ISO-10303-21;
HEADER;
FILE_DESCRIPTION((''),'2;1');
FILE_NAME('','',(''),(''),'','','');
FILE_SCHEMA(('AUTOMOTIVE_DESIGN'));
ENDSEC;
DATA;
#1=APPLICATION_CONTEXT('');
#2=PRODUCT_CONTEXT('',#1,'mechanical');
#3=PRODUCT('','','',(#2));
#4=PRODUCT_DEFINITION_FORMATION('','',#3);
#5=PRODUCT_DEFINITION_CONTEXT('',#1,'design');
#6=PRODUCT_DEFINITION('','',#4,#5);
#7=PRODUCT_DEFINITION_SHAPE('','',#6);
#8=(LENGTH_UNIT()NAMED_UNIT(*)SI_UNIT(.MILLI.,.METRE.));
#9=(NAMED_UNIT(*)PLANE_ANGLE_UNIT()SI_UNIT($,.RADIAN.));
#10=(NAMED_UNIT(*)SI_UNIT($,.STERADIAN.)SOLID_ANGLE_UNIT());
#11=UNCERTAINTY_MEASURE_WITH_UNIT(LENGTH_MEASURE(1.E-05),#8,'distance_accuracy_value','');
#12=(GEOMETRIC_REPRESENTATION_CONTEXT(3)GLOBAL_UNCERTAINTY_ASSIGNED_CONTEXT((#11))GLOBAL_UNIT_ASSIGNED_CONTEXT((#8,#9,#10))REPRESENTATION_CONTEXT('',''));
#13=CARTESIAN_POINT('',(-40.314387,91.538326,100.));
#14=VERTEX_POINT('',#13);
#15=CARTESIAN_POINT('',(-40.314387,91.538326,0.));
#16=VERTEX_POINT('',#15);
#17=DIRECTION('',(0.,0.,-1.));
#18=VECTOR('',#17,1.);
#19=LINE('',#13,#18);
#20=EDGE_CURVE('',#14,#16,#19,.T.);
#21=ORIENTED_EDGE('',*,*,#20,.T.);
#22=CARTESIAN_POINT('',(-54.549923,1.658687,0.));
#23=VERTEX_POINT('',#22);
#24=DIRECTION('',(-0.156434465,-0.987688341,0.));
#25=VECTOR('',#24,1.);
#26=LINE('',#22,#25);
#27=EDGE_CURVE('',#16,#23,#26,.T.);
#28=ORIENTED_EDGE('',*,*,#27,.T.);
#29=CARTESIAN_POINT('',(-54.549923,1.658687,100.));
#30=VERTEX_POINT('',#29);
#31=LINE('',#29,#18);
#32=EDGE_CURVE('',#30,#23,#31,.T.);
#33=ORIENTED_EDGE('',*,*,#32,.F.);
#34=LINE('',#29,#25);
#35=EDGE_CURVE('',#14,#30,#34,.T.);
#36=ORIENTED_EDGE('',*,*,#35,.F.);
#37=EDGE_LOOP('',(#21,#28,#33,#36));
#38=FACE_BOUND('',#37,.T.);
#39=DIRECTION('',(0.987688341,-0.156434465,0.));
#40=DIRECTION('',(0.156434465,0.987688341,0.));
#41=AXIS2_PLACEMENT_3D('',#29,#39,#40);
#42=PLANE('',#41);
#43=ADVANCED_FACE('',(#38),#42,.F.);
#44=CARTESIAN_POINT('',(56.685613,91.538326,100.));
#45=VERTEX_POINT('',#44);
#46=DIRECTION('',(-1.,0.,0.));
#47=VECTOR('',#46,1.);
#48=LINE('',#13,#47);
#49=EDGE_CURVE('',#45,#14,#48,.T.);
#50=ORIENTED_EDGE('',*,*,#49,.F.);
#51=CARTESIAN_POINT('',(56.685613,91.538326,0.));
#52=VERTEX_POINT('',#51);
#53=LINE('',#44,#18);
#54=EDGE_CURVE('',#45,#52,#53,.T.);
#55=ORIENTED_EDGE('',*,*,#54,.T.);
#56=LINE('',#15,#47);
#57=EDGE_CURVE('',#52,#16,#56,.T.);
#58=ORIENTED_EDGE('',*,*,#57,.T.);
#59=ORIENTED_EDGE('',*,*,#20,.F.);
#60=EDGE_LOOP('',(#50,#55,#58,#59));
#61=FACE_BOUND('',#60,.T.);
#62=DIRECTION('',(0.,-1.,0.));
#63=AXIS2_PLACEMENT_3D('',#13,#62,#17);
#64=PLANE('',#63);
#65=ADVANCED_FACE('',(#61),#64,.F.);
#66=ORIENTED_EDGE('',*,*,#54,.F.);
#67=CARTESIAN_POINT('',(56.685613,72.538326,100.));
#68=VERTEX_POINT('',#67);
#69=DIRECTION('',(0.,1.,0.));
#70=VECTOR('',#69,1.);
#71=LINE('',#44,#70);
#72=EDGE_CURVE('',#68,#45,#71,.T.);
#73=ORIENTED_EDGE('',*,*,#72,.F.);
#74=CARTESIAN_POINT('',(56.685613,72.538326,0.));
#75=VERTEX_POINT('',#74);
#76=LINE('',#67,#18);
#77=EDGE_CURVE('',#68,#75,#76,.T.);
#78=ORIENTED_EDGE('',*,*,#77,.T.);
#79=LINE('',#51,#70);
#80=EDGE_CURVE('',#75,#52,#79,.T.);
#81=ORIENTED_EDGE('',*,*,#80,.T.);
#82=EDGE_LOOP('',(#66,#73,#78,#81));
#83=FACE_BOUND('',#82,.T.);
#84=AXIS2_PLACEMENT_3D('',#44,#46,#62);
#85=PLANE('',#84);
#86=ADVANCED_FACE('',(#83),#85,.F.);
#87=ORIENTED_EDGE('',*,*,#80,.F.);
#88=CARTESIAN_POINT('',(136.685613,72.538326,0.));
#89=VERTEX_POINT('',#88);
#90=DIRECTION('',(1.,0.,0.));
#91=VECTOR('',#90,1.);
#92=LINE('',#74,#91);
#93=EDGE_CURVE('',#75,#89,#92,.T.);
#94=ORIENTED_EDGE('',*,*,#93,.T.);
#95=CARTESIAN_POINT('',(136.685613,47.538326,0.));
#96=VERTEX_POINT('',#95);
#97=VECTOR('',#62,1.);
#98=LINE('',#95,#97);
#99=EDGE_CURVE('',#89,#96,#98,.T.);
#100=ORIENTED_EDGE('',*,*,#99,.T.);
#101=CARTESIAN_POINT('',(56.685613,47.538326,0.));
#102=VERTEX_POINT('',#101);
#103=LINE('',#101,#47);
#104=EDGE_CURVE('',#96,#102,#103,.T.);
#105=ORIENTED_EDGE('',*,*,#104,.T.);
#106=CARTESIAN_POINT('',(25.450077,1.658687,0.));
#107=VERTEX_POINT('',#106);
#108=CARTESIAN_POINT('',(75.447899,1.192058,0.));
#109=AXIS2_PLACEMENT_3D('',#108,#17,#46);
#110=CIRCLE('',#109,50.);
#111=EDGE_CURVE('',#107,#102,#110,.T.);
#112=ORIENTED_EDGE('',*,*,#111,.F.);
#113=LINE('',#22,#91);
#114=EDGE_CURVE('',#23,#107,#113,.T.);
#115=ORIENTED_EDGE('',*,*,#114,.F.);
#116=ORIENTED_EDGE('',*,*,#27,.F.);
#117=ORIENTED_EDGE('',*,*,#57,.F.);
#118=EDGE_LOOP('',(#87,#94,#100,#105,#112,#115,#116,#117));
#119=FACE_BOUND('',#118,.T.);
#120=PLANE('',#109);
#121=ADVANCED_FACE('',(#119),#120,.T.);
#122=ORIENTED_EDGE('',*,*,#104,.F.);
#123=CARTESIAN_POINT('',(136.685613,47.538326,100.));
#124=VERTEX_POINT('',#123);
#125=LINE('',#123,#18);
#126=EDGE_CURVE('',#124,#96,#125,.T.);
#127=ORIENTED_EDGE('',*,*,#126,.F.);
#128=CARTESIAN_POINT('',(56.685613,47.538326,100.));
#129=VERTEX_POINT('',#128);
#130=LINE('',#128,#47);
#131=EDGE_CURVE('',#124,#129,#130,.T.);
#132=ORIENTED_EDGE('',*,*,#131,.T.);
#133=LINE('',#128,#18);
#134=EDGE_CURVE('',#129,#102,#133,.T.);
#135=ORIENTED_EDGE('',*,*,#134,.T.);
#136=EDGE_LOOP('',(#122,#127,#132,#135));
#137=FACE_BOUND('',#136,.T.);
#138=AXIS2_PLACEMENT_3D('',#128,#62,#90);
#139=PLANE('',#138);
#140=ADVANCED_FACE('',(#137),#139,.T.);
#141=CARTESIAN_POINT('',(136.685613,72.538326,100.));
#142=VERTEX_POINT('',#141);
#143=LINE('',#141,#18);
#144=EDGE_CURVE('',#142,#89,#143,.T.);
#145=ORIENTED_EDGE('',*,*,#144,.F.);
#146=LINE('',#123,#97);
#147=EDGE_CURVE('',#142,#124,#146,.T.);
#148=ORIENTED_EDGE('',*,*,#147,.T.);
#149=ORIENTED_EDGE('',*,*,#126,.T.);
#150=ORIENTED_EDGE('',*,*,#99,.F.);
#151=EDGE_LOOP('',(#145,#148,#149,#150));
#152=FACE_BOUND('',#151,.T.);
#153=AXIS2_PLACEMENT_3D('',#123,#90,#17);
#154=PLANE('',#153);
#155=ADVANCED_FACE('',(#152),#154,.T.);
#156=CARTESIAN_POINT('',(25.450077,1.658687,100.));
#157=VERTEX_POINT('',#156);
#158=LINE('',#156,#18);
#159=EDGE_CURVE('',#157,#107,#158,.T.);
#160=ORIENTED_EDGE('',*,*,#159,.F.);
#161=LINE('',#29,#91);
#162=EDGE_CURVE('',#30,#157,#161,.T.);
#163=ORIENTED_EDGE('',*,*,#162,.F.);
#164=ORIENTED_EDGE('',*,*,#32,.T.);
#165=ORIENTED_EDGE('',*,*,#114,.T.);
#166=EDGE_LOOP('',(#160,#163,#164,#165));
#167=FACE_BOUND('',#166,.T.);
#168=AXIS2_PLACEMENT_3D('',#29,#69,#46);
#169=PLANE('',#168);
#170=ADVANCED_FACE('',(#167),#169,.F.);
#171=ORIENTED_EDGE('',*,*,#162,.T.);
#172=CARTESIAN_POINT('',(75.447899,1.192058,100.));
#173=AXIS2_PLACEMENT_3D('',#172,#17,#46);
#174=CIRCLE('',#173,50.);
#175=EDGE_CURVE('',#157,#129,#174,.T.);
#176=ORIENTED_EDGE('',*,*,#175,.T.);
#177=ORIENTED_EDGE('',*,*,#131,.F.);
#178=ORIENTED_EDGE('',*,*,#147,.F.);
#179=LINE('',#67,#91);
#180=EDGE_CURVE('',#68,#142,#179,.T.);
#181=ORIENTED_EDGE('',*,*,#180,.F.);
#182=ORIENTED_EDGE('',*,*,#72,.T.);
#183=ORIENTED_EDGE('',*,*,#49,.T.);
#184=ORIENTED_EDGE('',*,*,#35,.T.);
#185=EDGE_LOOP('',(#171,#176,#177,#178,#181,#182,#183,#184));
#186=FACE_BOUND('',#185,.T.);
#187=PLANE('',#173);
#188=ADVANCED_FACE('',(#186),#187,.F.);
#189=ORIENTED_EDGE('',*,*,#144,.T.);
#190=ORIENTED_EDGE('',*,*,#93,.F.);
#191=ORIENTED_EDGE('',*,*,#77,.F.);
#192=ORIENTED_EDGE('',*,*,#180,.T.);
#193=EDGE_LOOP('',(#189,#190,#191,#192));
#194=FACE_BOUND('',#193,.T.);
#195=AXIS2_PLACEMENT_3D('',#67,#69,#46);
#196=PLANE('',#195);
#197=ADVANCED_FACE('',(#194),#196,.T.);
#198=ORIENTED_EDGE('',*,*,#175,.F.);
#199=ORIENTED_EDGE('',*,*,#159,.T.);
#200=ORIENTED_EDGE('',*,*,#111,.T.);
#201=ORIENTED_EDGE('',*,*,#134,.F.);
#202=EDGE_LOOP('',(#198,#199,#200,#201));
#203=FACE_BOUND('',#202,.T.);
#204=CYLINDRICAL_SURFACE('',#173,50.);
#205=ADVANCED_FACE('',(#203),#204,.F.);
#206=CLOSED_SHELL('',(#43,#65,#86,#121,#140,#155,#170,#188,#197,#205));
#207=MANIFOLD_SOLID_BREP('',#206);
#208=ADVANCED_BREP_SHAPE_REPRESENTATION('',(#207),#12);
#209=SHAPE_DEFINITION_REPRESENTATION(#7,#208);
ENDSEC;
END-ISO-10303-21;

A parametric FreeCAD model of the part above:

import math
import FreeCAD as App
import Part
import Sketcher

V = App.Vector
Q = App.Units.Quantity


def add_polygon(sketch, points):
    """Adds a closed chain of lines whose ends are joined by coincident constraints."""
    first, n = sketch.GeometryCount, len(points)
    for a, b in zip(points, points[1:] + points[:1]):
        sketch.addGeometry(Part.LineSegment(App.Vector(*a, 0), App.Vector(*b, 0)), False)
    for i in range(n):
        sketch.addConstraint(Sketcher.Constraint("Coincident", first + i, 2, first + (i + 1) % n, 1))

doc = App.newDocument("Part")
params = doc.addObject("Spreadsheet::Sheet", "Params")
for row, (alias, value) in enumerate([
    ("sketch1_radius", "50 mm"),
    ("sketch1_width", "80 mm"),
    ("sketch1_width2", "97 mm"),
    ("sketch1_height", "44 mm"),
    ("sketch1_length", "91 mm"),
    ("pad1_length", "100 mm"),
    ("sketch2_width", "80 mm"),
    ("sketch2_height", "25 mm"),
    ("pad2_length", "100 mm"),
], start=1):
    params.set(f"A{row}", alias)
    params.set(f"B{row}", "=" + value)
    params.setAlias(f"B{row}", alias)

body = doc.addObject("PartDesign::Body", "Body")

# Sketch on XY plane
sketch1 = doc.addObject("Sketcher::SketchObject", "Sketch")
body.addObject(sketch1)
sketch1.AttachmentSupport = (doc.XY_Plane, [""])
sketch1.MapMode = "FlatFace"
sketch1.addGeometry([
    Part.LineSegment(V(-55, 2, 0), V(25, 2, 0)),  # 0
    Part.ArcOfCircle(Part.Circle(V(75, 1, 0), V(0, 0, 1), 50), math.radians(112), math.radians(179)),  # 1
    Part.LineSegment(V(57, 48, 0), V(57, 92, 0)),  # 2
    Part.LineSegment(V(57, 92, 0), V(-40, 92, 0)),  # 3
    Part.LineSegment(V(-40, 92, 0), V(-55, 2, 0)),  # 4
], False)
sketch1.addConstraint([
    Sketcher.Constraint("Coincident", 0, 2, 1, 2),
    Sketcher.Constraint("Coincident", 1, 1, 2, 1),
    Sketcher.Constraint("Coincident", 2, 2, 3, 1),
    Sketcher.Constraint("Coincident", 3, 2, 4, 1),
    Sketcher.Constraint("Coincident", 4, 2, 0, 1),
    Sketcher.Constraint("Horizontal", 0),
    Sketcher.Constraint("Vertical", 2),
    Sketcher.Constraint("Horizontal", 3),
    Sketcher.Constraint("Radius", 1, 50.0),
    Sketcher.Constraint("DistanceX", 0, 1, 0, 2, 80.0),
    Sketcher.Constraint("DistanceX", 3, 2, 3, 1, 97.0),
    Sketcher.Constraint("DistanceY", 2, 1, 2, 2, 44.0),
    Sketcher.Constraint("Angle", 4, Q("-99 deg")),
    Sketcher.Constraint("Distance", 4, 91.0),
    Sketcher.Constraint("DistanceX", -1, 1, 1, 3, 75.447899),
    Sketcher.Constraint("DistanceY", -1, 1, 1, 3, 1.192058),
])
sketch1.setExpression("Constraints[8]", "Params.sketch1_radius")
sketch1.setExpression("Constraints[9]", "Params.sketch1_width")
sketch1.setExpression("Constraints[10]", "Params.sketch1_width2")
sketch1.setExpression("Constraints[11]", "Params.sketch1_height")
sketch1.setExpression("Constraints[13]", "Params.sketch1_length")
pad1 = doc.addObject("PartDesign::Pad", "Pad")
body.addObject(pad1)
pad1.Profile = sketch1
pad1.setExpression("Length", "Params.pad1_length")

# Sketch on XY plane
sketch2 = doc.addObject("Sketcher::SketchObject", "Sketch001")
body.addObject(sketch2)
sketch2.AttachmentSupport = (doc.XY_Plane, [""])
sketch2.MapMode = "FlatFace"
add_polygon(sketch2, [(137, 73), (137, 48), (57, 48), (57, 73)])  # lines 0-3
sketch2.addConstraint([
    Sketcher.Constraint("Vertical", 0),
    Sketcher.Constraint("Horizontal", 1),
    Sketcher.Constraint("Vertical", 2),
    Sketcher.Constraint("Horizontal", 3),
    Sketcher.Constraint("DistanceX", 1, 2, 1, 1, 80.0),
    Sketcher.Constraint("DistanceY", 0, 2, 0, 1, 25.0),
    Sketcher.Constraint("DistanceX", -1, 1, 0, 2, 136.685613),
    Sketcher.Constraint("DistanceY", -1, 1, 0, 2, 47.538326),
])
sketch2.setExpression("Constraints[8]", "Params.sketch2_width")
sketch2.setExpression("Constraints[9]", "Params.sketch2_height")
pad2 = doc.addObject("PartDesign::Pad", "Pad001")
body.addObject(pad2)
pad2.Profile = sketch2
pad2.setExpression("Length", "Params.pad2_length")

doc.recompute()
